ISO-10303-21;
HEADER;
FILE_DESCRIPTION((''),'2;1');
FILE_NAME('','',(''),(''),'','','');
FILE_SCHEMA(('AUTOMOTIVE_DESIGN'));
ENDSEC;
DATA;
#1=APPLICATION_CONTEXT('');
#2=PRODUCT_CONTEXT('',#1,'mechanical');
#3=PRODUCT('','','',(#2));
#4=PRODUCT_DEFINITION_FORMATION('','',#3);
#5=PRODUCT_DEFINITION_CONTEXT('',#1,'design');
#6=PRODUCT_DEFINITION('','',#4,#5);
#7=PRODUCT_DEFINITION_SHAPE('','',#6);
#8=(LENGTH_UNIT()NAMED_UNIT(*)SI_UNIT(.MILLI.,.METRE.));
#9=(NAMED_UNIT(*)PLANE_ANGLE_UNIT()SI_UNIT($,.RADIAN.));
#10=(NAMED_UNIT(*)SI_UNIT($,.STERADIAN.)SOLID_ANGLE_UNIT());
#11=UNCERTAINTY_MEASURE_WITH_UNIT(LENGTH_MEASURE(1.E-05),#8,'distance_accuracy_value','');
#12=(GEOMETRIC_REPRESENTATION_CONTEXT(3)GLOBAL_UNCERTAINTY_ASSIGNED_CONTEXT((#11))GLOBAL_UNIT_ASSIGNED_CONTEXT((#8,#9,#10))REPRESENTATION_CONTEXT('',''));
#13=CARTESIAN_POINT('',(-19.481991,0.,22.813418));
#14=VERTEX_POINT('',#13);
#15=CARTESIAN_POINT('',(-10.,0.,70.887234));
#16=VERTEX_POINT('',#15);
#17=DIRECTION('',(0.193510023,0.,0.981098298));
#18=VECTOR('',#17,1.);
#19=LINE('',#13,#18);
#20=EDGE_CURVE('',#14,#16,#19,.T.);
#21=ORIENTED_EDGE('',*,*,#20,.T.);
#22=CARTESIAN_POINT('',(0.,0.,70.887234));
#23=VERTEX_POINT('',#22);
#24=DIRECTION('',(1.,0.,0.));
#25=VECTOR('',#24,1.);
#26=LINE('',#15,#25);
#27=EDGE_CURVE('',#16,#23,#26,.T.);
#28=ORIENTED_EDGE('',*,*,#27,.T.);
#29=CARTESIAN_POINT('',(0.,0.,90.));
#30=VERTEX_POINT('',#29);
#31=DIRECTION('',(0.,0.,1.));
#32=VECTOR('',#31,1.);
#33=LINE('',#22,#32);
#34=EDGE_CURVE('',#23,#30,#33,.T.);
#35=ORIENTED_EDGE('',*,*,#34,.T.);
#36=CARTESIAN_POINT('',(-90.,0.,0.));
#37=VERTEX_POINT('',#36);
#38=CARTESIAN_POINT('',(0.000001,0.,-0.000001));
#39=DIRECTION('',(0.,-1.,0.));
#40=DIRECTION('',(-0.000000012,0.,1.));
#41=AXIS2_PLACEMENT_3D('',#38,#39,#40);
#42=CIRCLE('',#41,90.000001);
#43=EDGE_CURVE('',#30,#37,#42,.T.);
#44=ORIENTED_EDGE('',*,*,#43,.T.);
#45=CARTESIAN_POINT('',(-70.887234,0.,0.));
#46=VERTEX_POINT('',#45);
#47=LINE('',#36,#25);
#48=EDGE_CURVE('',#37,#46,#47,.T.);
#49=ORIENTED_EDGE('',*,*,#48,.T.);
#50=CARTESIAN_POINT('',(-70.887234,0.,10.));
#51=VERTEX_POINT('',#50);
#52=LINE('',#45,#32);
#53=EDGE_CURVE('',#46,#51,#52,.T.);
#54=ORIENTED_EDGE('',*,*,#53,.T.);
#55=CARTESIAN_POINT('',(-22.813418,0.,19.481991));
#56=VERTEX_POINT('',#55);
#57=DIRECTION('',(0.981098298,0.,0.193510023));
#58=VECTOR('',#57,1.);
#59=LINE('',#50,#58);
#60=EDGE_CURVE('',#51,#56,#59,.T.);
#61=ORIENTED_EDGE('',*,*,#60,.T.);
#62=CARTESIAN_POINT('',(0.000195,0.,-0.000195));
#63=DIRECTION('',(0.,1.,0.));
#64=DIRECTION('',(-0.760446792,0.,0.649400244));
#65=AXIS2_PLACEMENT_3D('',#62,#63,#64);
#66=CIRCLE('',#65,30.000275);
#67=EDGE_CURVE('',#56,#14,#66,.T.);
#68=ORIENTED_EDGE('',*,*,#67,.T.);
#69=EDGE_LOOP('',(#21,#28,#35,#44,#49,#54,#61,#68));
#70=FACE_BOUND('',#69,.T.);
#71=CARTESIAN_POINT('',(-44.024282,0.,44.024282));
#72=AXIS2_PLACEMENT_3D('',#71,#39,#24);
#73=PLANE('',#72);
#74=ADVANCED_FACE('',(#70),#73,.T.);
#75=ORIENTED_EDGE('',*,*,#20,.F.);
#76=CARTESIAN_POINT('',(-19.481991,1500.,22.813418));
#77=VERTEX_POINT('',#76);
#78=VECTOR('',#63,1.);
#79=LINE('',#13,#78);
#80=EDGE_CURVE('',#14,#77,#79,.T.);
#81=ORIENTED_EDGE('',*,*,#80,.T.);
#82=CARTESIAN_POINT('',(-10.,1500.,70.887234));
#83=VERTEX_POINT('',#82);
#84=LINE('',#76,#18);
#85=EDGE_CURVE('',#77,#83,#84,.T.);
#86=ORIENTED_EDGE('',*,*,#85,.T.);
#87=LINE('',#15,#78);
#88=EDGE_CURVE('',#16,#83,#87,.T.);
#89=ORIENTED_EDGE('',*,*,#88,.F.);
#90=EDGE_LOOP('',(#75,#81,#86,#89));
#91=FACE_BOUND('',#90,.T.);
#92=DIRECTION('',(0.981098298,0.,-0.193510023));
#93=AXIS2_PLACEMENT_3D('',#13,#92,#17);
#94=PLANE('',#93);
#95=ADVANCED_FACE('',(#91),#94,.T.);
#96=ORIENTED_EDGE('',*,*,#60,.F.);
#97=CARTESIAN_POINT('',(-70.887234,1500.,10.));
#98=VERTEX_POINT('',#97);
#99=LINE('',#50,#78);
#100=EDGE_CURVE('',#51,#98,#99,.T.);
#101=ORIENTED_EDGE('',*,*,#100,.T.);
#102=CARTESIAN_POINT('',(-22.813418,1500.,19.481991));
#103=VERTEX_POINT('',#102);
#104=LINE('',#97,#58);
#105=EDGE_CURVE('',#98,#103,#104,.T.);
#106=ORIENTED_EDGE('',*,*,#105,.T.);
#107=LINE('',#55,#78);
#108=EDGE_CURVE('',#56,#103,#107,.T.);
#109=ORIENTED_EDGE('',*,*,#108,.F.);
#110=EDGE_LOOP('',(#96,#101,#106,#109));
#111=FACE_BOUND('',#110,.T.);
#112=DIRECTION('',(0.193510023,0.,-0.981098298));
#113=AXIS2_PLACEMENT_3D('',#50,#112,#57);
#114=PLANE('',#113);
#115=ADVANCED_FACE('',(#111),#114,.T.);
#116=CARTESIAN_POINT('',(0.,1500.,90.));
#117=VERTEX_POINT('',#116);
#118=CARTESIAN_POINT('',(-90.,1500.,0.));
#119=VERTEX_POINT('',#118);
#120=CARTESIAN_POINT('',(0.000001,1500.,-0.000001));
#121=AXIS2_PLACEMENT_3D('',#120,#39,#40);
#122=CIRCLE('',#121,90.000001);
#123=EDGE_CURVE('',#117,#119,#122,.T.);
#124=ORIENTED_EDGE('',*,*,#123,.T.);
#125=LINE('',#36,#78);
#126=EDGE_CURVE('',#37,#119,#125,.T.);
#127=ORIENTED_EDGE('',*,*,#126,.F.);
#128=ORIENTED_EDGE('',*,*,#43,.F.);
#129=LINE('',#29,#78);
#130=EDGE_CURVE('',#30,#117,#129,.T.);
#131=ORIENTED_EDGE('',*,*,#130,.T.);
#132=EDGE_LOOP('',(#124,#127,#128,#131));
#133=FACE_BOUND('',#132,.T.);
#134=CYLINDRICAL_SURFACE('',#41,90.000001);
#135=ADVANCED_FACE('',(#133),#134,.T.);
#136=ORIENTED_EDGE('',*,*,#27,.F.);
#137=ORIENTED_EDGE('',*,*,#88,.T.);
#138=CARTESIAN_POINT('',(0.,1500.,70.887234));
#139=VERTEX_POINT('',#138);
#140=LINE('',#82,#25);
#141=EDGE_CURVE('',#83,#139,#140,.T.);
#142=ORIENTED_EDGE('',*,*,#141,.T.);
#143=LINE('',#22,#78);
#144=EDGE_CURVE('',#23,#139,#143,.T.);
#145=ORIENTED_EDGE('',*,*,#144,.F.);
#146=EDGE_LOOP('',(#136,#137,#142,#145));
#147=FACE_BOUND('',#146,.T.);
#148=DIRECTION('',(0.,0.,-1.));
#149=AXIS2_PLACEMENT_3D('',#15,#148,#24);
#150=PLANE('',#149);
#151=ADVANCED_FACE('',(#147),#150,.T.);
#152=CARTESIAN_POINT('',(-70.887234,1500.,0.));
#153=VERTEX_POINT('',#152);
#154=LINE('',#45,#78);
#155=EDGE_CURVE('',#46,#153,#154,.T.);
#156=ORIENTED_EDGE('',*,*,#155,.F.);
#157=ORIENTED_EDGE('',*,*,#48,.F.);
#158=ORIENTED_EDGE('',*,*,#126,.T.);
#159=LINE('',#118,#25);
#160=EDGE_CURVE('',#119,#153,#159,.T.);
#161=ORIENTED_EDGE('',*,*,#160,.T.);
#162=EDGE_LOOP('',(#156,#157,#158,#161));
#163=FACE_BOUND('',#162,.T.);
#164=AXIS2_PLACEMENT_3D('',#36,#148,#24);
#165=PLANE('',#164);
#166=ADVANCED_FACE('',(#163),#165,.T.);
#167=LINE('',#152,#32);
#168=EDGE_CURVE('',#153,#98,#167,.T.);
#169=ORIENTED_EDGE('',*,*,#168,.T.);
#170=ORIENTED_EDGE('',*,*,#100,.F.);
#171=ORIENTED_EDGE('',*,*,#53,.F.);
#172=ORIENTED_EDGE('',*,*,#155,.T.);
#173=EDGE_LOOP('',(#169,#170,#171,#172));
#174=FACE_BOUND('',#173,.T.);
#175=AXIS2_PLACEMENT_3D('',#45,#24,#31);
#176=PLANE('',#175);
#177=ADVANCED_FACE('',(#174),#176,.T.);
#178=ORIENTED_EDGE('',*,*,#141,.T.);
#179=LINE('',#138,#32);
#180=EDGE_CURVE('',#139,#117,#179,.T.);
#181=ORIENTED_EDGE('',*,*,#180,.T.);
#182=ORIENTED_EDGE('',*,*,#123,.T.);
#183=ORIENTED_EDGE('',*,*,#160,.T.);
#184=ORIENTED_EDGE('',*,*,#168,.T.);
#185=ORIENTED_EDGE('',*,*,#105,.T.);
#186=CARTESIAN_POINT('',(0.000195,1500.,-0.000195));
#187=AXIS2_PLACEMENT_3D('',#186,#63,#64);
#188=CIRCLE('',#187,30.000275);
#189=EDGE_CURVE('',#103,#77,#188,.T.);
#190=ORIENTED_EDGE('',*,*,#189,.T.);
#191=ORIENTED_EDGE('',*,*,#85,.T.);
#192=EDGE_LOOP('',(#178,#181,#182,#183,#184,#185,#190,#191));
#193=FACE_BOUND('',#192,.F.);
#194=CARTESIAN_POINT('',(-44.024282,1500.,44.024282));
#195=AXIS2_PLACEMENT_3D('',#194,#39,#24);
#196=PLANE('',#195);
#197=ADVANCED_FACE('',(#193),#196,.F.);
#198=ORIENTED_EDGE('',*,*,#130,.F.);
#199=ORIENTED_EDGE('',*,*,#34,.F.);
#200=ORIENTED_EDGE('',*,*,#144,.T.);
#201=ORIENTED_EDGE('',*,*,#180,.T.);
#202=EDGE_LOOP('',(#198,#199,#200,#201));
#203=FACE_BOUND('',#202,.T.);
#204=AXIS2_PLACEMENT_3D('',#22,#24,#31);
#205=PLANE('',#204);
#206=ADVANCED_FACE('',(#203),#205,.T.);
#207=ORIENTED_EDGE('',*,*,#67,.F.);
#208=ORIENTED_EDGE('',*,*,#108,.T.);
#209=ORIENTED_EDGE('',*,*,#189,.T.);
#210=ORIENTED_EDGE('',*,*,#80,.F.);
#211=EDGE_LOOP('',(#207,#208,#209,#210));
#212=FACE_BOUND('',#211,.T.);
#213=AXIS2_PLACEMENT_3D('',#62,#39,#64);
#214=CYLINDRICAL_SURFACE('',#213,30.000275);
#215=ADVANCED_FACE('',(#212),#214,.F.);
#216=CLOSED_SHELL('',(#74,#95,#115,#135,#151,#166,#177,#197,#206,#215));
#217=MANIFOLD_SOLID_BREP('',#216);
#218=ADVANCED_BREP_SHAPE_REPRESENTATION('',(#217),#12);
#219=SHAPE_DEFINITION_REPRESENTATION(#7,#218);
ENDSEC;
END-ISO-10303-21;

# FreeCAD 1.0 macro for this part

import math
import FreeCAD as App
import Part
import Sketcher

doc = App.newDocument("Part")
body = doc.addObject("PartDesign::Body", "Body")

# Sketch on XZ plane
sketch1 = body.newObject("Sketcher::SketchObject", "Sketch")
sketch1.AttachmentSupport = (doc.getObject("XZ_Plane"), [""])
sketch1.MapMode = "FlatFace"
sketch1.addGeometry(Part.LineSegment(App.Vector(0, 70.9, 0), App.Vector(0, 90, 0)), False)
sketch1.addGeometry(Part.ArcOfCircle(Part.Circle(App.Vector(0, 0, 0), App.Vector(0, 0, 1), 90), math.radians(90), math.radians(180)), False)
sketch1.addGeometry(Part.LineSegment(App.Vector(-90, 0, 0), App.Vector(-70.9, 0, 0)), False)
sketch1.addGeometry(Part.LineSegment(App.Vector(-70.9, 0, 0), App.Vector(-70.9, 10, 0)), False)
sketch1.addGeometry(Part.LineSegment(App.Vector(-70.9, 10, 0), App.Vector(-22.8, 19.5, 0)), False)
sketch1.addGeometry(Part.ArcOfCircle(Part.Circle(App.Vector(0, 0, 0), App.Vector(0, 0, 1), 30), math.radians(130.5), math.radians(139.5)), False)
sketch1.addGeometry(Part.LineSegment(App.Vector(-19.5, 22.8, 0), App.Vector(-10, 70.9, 0)), False)
sketch1.addGeometry(Part.LineSegment(App.Vector(-10, 70.9, 0), App.Vector(0, 70.9, 0)), False)
sketch1.addConstraint(Sketcher.Constraint("Coincident", 0, 2, 1, 1))
sketch1.addConstraint(Sketcher.Constraint("Coincident", 1, 2, 2, 1))
sketch1.addConstraint(Sketcher.Constraint("Coincident", 2, 2, 3, 1))
sketch1.addConstraint(Sketcher.Constraint("Coincident", 3, 2, 4, 1))
sketch1.addConstraint(Sketcher.Constraint("Coincident", 4, 2, 5, 2))
sketch1.addConstraint(Sketcher.Constraint("Coincident", 5, 1, 6, 1))
sketch1.addConstraint(Sketcher.Constraint("Coincident", 6, 2, 7, 1))
sketch1.addConstraint(Sketcher.Constraint("Coincident", 7, 2, 0, 1))
sketch1.addConstraint(Sketcher.Constraint("Vertical", 0))
sketch1.addConstraint(Sketcher.Constraint("Horizontal", 2))
sketch1.addConstraint(Sketcher.Constraint("Vertical", 3))
sketch1.addConstraint(Sketcher.Constraint("Horizontal", 7))
sketch1.addConstraint(Sketcher.Constraint("Coincident", 1, 3, -1, 1))
sketch1.addConstraint(Sketcher.Constraint("PointOnObject", 0, 2, -2))
sketch1.addConstraint(Sketcher.Constraint("PointOnObject", 1, 2, -1))
sketch1.addConstraint(Sketcher.Constraint("Equal", 2, 0))
sketch1.addConstraint(Sketcher.Constraint("Equal", 7, 3))
sketch1.addConstraint(Sketcher.Constraint("Equal", 4, 6))
sketch1.addConstraint(Sketcher.Constraint("Radius", 1, 90.000001))
sketch1.addConstraint(Sketcher.Constraint("DistanceX", 7, 1, 7, 2, 10.0))
sketch1.addConstraint(Sketcher.Constraint("Distance", 4, 48.999999))
sketch1.addConstraint(Sketcher.Constraint("Radius", 5, 30.000275))
sketch1.addConstraint(Sketcher.Constraint("DistanceX", 2, 1, 2, 2, 19.112766))
sketch1.addConstraint(Sketcher.Constraint("DistanceY", -1, 1, 4, 2, 19.481991))
sketch1.addConstraint(Sketcher.Constraint("DistanceX", 5, 1, -1, 1, 19.481991))
pad1 = body.newObject("PartDesign::Pad", "Pad")
pad1.Profile = sketch1
pad1.Length = 1500
pad1.Reversed = True

doc.recompute()
